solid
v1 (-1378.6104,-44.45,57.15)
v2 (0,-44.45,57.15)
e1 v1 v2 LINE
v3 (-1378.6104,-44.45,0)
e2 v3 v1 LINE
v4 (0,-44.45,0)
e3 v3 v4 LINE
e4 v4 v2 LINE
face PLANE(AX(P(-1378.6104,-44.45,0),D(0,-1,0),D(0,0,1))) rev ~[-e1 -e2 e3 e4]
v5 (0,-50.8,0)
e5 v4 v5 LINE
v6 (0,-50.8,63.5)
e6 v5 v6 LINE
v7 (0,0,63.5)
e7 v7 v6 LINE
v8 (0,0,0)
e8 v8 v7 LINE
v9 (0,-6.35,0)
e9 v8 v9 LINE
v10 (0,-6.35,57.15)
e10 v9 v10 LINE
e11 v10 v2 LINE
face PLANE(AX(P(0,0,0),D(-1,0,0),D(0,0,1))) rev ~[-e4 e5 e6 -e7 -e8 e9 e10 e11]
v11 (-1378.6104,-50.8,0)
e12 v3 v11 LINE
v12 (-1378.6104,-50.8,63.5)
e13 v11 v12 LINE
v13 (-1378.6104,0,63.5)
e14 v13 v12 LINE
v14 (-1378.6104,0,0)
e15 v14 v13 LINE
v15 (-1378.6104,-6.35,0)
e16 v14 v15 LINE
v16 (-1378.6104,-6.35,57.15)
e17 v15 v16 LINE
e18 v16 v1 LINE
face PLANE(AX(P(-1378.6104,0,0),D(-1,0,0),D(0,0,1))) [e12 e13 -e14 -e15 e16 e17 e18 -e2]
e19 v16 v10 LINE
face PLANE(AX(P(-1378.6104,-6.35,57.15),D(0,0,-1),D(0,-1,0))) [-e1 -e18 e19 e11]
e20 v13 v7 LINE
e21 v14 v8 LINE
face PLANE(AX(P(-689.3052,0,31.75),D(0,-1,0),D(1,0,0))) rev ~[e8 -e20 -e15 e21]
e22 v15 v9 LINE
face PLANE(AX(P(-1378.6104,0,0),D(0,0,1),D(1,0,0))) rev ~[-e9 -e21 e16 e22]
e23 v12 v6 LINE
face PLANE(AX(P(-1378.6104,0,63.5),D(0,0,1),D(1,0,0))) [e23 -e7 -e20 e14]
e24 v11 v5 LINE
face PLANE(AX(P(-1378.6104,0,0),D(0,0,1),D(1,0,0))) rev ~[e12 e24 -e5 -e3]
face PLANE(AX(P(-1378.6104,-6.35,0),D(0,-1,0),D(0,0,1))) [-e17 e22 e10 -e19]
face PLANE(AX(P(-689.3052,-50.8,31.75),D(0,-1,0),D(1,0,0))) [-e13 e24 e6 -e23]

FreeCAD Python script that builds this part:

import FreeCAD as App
import Part
import Sketcher
from FreeCAD import Vector
Q = App.Units.Quantity


def add_polygon(sketch, points):
    """Adds a closed chain of lines whose ends are joined by coincident constraints."""
    first, n = sketch.GeometryCount, len(points)
    for a, b in zip(points, points[1:] + points[:1]):
        sketch.addGeometry(Part.LineSegment(App.Vector(*a, 0), App.Vector(*b, 0)), False)
    for i in range(n):
        sketch.addConstraint(Sketcher.Constraint("Coincident", first + i, 2, first + (i + 1) % n, 1))

doc = App.newDocument("Part")
body = doc.addObject("PartDesign::Body", "Body")

sketch1 = body.newObject("Sketcher::SketchObject", "Sketch")
sketch1.AttachmentSupport = (doc.getObject("XZ_Plane"), [""])
sketch1.MapMode = "FlatFace"
add_polygon(sketch1, [(-1379, 64), (-1379, 0), (0, 0), (0, 64)])
sketch1.addConstraint(Sketcher.Constraint("Vertical", 0))
sketch1.addConstraint(Sketcher.Constraint("Horizontal", 1))
sketch1.addConstraint(Sketcher.Constraint("Vertical", 2))
sketch1.addConstraint(Sketcher.Constraint("Horizontal", 3))
sketch1.addConstraint(Sketcher.Constraint("Coincident", 1, 2, -1, 1))
sketch1.addConstraint(Sketcher.Constraint("DistanceY", 0, 2, 0, 1, Q("2.5 in")))
sketch1.addConstraint(Sketcher.Constraint("DistanceX", 1, 1, 1, 2, Q("54.276 in")))
pad1 = body.newObject("PartDesign::Pad", "Pad")
pad1.Profile = sketch1
pad1.Length = Q("2 in")

sketch2 = body.newObject("Sketcher::SketchObject", "Sketch001")
sketch2.AttachmentSupport = (doc.getObject("YZ_Plane"), [""])
sketch2.MapMode = "FlatFace"
sketch2.AttachmentOffset = App.Placement(Vector(0, 0, -54.276 * 25.4), App.Rotation())
add_polygon(sketch2, [(-6, 57), (-6, 0), (-44, 0), (-44, 57)])
sketch2.addConstraint(Sketcher.Constraint("Vertical", 0))
sketch2.addConstraint(Sketcher.Constraint("Horizontal", 1))
sketch2.addConstraint(Sketcher.Constraint("Vertical", 2))
sketch2.addConstraint(Sketcher.Constraint("Horizontal", 3))
sketch2.addConstraint(Sketcher.Constraint("PointOnObject", 0, 2, -1))
sketch2.addConstraint(Sketcher.Constraint("DistanceX", 1, 2, 1, 1, Q("1.5 in")))
sketch2.addConstraint(Sketcher.Constraint("DistanceY", 0, 2, 0, 1, Q("2.25 in")))
sketch2.addConstraint(Sketcher.Constraint("DistanceX", 0, 2, -1, 1, Q("0.25 in")))
pocket1 = body.newObject("PartDesign::Pocket", "Pocket")
pocket1.Profile = sketch2
pocket1.Type = "ThroughAll"
pocket1.Reversed = True

doc.recompute()
